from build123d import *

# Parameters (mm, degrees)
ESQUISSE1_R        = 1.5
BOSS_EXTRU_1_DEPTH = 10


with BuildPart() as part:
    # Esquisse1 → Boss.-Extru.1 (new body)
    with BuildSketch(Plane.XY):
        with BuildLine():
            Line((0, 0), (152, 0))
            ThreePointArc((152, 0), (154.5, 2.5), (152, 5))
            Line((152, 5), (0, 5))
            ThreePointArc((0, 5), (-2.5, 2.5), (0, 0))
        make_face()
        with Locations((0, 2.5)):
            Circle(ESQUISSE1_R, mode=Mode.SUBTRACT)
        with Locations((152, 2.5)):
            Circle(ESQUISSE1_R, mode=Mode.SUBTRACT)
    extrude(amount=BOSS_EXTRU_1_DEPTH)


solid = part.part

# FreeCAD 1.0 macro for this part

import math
import FreeCAD as App
import Part
import Sketcher

V = App.Vector

doc = App.newDocument("Part")
body = doc.addObject("PartDesign::Body", "Body")

sketch1 = body.newObject("Sketcher::SketchObject", "Sketch")
sketch1.AttachmentSupport = (doc.getObject("XY_Plane"), [""])
sketch1.MapMode = "FlatFace"
sketch1.addGeometry([
    Part.LineSegment(V(0, 0, 0), V(152, 0, 0)),
    Part.ArcOfCircle(Part.Circle(V(152, 2.5, 0), V(0, 0, 1), 2.5), math.radians(-90), math.radians(90)),
    Part.LineSegment(V(152, 5, 0), V(0, 5, 0)),
    Part.ArcOfCircle(Part.Circle(V(0, 2.5, 0), V(0, 0, 1), 2.5), math.radians(90), math.radians(270)),
    Part.Circle(V(0, 2.5, 0), V(0, 0, 1), 1.5),
    Part.Circle(V(152, 2.5, 0), V(0, 0, 1), 1.5),
], False)
sketch1.addConstraint([
    Sketcher.Constraint("Tangent", 0, 2, 1, 1),
    Sketcher.Constraint("Tangent", 1, 2, 2, 1),
    Sketcher.Constraint("Tangent", 2, 2, 3, 1),
    Sketcher.Constraint("Tangent", 3, 2, 0, 1),
    Sketcher.Constraint("Horizontal", 0),
    Sketcher.Constraint("Horizontal", 2),
    Sketcher.Constraint("Coincident", 3, 2, -1, 1),
    Sketcher.Constraint("Coincident", 4, 3, 3, 3),
    Sketcher.Constraint("Coincident", 5, 3, 1, 3),
    Sketcher.Constraint("Equal", 4, 5),
    Sketcher.Constraint("Diameter", 4, 3.0),
    Sketcher.Constraint("Radius", 1, 2.5),
    Sketcher.Constraint("DistanceX", 0, 1, 0, 2, 152.0),
])
pad1 = body.newObject("PartDesign::Pad", "Pad")
pad1.Profile = sketch1
pad1.Length = 10

doc.recompute()
